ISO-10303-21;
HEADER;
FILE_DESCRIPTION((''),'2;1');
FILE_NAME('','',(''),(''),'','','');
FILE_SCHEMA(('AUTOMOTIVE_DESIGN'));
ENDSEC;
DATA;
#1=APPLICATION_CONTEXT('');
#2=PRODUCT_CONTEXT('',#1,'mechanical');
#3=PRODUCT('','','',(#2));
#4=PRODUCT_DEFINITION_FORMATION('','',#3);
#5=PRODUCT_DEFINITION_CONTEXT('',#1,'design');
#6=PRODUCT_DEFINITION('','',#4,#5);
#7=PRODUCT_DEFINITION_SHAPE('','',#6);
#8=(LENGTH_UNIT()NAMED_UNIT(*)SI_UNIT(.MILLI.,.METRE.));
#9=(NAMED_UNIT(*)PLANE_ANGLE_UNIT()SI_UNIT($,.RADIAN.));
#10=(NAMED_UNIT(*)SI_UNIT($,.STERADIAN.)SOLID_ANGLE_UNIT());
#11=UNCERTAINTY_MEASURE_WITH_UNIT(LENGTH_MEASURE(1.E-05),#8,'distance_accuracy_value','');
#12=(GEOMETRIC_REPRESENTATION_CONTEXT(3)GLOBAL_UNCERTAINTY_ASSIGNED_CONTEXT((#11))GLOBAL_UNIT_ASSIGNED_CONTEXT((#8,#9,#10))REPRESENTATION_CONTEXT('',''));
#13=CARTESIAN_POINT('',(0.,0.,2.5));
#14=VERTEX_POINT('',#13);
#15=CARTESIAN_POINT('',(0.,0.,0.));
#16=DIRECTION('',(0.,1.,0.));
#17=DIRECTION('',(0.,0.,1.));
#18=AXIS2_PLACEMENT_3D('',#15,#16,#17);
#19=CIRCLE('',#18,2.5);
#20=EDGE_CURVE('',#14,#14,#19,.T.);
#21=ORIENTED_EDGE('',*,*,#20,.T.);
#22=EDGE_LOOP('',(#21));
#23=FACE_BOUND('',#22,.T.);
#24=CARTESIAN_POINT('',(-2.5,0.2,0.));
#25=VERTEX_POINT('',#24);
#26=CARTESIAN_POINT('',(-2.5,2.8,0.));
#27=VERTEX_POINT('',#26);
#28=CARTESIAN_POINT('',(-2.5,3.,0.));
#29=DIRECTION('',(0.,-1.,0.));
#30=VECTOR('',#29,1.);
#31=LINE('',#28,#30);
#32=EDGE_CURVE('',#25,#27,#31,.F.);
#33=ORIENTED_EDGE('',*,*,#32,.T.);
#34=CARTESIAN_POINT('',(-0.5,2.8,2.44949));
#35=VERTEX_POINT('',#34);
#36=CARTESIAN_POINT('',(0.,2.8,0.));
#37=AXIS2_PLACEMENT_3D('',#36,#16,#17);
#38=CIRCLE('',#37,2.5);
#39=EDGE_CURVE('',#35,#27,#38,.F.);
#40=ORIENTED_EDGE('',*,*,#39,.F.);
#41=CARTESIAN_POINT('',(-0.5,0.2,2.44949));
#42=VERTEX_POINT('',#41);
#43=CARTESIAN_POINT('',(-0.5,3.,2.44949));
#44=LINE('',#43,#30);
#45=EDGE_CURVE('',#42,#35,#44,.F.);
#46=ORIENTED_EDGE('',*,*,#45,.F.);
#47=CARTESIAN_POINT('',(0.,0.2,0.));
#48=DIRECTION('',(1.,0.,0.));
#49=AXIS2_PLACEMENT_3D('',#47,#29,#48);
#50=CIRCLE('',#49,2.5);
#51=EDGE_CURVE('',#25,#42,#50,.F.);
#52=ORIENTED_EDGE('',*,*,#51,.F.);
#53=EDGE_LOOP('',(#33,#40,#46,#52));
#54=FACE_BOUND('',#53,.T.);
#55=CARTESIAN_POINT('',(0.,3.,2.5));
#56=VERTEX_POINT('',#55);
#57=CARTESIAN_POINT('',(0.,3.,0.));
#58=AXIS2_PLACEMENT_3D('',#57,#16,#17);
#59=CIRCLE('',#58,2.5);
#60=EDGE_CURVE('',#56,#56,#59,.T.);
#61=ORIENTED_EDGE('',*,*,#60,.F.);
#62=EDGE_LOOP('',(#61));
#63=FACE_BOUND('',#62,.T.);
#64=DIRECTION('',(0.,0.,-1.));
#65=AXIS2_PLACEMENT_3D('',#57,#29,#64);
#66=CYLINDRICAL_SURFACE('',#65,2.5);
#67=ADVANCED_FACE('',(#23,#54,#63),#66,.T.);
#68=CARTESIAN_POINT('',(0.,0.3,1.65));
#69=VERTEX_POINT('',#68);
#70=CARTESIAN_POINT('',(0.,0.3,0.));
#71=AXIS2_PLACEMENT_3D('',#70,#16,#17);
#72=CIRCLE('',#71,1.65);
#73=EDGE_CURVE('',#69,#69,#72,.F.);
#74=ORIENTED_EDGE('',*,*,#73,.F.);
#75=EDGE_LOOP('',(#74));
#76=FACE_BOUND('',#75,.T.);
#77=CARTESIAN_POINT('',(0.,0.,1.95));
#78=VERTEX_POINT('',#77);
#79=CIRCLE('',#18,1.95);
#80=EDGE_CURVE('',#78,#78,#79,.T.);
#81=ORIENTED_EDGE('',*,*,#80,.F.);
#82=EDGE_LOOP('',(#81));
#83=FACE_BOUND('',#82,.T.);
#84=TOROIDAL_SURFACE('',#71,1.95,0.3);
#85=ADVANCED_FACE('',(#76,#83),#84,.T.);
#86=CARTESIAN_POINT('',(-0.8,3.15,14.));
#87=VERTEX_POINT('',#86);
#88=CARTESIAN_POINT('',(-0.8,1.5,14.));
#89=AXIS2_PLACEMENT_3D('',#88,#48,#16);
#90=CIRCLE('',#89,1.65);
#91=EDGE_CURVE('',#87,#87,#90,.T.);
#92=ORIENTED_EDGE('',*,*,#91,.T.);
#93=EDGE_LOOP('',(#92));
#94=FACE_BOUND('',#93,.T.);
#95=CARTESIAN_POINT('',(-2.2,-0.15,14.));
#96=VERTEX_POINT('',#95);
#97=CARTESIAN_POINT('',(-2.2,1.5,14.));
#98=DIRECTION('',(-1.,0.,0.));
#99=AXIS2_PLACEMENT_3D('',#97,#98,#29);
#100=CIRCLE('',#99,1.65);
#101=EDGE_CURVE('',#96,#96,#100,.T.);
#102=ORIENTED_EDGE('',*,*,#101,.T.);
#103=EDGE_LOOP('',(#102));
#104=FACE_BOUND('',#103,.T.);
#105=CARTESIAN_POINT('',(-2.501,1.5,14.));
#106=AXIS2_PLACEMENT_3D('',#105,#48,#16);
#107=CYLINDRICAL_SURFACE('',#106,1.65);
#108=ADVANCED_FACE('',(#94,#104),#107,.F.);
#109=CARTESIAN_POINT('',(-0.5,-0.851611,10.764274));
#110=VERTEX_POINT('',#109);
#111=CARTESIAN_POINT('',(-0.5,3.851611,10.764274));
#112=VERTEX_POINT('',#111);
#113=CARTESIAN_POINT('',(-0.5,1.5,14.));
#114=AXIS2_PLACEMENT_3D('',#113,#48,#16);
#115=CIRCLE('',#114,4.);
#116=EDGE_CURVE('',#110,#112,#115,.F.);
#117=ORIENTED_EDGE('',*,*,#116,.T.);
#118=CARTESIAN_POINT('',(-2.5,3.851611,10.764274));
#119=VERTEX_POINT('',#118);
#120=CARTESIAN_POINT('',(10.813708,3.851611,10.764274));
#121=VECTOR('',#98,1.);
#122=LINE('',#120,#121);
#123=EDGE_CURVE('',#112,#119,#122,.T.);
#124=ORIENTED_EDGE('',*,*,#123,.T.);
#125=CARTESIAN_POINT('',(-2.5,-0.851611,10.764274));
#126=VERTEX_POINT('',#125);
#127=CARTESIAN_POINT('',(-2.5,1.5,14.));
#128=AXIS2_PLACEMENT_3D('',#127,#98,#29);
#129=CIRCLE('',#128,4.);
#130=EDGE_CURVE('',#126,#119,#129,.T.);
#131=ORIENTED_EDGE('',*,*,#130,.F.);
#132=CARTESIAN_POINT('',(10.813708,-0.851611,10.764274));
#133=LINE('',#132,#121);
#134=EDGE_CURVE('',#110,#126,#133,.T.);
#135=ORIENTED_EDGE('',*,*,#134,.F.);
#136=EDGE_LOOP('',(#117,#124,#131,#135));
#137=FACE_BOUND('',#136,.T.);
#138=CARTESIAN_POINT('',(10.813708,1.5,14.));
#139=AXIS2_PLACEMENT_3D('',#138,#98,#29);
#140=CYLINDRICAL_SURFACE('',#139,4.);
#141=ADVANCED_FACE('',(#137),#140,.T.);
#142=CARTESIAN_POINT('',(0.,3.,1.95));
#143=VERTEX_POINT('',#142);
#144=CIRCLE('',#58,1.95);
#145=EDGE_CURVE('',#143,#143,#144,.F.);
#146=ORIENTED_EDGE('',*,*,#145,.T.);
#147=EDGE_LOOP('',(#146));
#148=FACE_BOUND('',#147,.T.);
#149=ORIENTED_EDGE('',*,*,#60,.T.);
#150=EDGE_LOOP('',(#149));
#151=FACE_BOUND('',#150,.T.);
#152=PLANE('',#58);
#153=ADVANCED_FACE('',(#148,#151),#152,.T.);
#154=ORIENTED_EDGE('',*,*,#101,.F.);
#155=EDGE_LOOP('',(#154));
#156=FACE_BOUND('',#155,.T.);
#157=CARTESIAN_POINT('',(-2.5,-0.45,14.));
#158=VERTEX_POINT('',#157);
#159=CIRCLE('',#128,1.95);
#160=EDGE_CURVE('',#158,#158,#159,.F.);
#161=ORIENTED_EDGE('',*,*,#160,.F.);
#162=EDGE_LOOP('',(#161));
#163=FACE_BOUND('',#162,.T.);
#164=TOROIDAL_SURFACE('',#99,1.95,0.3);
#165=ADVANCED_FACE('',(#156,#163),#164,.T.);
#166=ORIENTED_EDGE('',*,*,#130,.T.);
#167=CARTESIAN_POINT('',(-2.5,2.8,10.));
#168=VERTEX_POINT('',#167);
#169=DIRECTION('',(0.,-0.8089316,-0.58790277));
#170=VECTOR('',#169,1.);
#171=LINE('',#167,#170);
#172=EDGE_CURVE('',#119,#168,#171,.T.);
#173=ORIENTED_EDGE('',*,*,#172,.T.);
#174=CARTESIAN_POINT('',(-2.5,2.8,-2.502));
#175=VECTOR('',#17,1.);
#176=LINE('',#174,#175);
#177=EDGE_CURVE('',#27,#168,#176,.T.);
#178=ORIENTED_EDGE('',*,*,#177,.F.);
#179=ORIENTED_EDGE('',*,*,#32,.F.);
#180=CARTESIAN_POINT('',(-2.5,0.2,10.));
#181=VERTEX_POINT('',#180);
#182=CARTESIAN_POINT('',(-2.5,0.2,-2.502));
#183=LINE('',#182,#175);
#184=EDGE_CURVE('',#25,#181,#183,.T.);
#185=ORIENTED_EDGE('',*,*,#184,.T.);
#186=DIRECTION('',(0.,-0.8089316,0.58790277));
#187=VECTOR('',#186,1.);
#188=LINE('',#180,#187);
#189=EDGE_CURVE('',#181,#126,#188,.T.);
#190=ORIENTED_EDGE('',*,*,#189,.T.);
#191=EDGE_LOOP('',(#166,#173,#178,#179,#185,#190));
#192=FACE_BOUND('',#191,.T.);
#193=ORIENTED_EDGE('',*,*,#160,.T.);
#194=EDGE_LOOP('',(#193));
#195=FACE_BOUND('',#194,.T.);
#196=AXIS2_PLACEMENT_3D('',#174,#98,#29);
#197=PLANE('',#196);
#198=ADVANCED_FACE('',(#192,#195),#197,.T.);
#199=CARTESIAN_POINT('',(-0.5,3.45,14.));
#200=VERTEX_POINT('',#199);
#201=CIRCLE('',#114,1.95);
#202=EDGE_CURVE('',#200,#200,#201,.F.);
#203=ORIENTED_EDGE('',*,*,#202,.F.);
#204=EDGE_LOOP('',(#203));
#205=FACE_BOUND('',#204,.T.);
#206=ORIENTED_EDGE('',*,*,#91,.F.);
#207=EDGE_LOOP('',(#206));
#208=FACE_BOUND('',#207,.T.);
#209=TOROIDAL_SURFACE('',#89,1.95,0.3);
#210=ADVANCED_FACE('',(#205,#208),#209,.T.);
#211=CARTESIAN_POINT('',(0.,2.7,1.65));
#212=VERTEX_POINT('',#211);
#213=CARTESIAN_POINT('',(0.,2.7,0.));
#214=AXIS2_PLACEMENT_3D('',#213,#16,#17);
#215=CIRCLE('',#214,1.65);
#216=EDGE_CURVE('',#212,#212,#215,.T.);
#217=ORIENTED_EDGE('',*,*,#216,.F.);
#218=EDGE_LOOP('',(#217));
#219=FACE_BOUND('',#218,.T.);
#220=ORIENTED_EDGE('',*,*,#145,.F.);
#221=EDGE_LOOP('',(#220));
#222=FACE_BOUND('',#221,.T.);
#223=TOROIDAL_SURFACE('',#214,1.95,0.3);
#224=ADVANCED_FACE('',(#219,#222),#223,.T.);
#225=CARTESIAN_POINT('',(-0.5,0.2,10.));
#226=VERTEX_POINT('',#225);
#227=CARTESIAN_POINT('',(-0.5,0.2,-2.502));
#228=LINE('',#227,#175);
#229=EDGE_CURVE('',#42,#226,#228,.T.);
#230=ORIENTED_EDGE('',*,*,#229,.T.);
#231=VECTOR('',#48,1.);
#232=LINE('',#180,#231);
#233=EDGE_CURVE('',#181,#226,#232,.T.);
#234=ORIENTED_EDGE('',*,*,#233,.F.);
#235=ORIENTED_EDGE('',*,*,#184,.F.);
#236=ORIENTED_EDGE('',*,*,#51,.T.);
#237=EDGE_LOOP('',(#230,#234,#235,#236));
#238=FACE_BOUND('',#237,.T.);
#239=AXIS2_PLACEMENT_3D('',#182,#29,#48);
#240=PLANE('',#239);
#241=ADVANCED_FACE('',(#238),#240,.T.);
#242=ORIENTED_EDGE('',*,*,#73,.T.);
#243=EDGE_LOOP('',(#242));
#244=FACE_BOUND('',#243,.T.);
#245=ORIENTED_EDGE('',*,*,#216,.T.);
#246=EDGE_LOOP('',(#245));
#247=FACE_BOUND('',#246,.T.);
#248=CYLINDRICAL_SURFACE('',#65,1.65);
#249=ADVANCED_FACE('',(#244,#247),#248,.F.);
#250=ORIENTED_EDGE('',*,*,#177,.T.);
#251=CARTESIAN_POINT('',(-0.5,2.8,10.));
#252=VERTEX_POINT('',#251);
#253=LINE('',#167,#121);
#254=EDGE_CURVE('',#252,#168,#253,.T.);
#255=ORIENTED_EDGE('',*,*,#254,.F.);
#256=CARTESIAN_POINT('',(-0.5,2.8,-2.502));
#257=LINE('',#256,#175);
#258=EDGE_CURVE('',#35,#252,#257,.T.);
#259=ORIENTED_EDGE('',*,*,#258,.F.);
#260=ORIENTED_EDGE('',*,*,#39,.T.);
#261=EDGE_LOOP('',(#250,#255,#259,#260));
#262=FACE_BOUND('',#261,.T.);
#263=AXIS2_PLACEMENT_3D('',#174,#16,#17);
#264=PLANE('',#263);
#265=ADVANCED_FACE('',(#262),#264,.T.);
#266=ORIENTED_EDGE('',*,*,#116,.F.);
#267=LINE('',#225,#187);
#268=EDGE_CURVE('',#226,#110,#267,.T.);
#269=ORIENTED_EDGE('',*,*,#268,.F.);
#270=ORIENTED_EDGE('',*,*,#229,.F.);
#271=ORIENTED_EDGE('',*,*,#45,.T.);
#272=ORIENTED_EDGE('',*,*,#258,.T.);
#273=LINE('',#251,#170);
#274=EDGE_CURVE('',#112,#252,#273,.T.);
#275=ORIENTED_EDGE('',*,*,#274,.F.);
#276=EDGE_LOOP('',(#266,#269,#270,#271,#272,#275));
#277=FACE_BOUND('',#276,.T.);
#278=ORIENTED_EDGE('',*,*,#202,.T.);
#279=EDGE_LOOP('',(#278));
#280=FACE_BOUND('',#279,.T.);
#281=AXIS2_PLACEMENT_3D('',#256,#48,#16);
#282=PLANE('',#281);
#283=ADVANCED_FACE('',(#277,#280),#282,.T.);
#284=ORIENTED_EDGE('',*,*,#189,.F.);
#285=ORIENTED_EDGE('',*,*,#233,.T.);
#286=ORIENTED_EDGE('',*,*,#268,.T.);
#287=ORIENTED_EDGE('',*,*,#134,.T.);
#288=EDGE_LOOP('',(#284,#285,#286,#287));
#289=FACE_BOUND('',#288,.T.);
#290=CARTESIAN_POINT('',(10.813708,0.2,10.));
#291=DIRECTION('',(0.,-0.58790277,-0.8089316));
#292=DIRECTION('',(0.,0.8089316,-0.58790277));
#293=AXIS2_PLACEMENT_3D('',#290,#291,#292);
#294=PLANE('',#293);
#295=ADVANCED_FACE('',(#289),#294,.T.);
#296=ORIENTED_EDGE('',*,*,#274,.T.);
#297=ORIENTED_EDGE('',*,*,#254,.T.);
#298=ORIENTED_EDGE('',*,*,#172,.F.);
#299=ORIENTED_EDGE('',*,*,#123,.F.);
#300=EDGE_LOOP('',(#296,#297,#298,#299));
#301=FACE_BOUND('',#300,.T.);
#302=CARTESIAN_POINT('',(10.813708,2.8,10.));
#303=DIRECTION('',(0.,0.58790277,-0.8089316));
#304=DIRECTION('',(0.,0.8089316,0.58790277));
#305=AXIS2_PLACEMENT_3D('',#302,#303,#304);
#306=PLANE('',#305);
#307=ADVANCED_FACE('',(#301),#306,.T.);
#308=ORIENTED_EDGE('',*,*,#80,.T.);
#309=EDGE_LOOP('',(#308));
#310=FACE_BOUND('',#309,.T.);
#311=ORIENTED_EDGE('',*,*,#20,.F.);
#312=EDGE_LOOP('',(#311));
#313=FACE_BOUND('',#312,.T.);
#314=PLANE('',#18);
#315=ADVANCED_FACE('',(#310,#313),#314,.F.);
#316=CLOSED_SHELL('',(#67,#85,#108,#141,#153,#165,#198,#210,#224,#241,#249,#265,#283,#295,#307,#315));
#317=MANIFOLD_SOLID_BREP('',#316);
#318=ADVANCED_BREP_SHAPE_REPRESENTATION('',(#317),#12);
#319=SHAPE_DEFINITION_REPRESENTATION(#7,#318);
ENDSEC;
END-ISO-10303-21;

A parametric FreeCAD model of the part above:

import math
import FreeCAD as App
import Part
import Sketcher


def edges_at(feature, points):
    """Names of the edges that pass closest to the given points."""
    edges = feature.Shape.Edges
    near = lambda p: min(range(len(edges)), key=lambda i: edges[i].distToShape(Part.Vertex(*p))[0])
    return sorted({f"Edge{near(p) + 1}" for p in points})


def add_polygon(sketch, points):
    """Adds a closed chain of lines whose ends are joined by coincident constraints."""
    first, n = sketch.GeometryCount, len(points)
    for a, b in zip(points, points[1:] + points[:1]):
        sketch.addGeometry(Part.LineSegment(App.Vector(*a, 0), App.Vector(*b, 0)), False)
    for i in range(n):
        sketch.addConstraint(Sketcher.Constraint("Coincident", first + i, 2, first + (i + 1) % n, 1))

doc = App.newDocument("Part")
body = doc.addObject("PartDesign::Body", "Body")

sketch1 = body.newObject("Sketcher::SketchObject", "Sketch")
sketch1.AttachmentSupport = (doc.getObject("XZ_Plane"), [""])
sketch1.MapMode = "FlatFace"
sketch1.addGeometry([
    Part.Circle(App.Vector(0, 0, 0), App.Vector(0, 0, 1), 2.5),
    Part.Circle(App.Vector(0, 0, 0), App.Vector(0, 0, 1), 1.6),
], False)
sketch1.addConstraint([
    Sketcher.Constraint("Coincident", 0, 3, -1, 1),
    Sketcher.Constraint("Coincident", 1, 3, -1, 1),
    Sketcher.Constraint("Diameter", 0, 5.0),
    Sketcher.Constraint("Diameter", 1, 3.3),
])
pad1 = body.newObject("PartDesign::Pad", "Pad")
pad1.Profile = sketch1
pad1.Length = 3
pad1.Reversed = True

sketch2 = body.newObject("Sketcher::SketchObject", "Sketch001")
sketch2.AttachmentSupport = (doc.getObject("XY_Plane"), [""])
sketch2.MapMode = "FlatFace"
sketch2.AttachmentOffset = App.Placement(App.Vector(0, 0, 10), App.Rotation())
add_polygon(sketch2, [(-2.5, 2.8), (-2.5, 0.2), (-0.5, 0.2), (-0.5, 2.8)])
sketch2.addConstraint([
    Sketcher.Constraint("Vertical", 0),
    Sketcher.Constraint("Horizontal", 1),
    Sketcher.Constraint("Vertical", 2),
    Sketcher.Constraint("Horizontal", 3),
    Sketcher.Constraint("DistanceX", 1, 1, 1, 2, 2.0),
    Sketcher.Constraint("DistanceY", 0, 2, 0, 1, 2.6),
    Sketcher.Constraint("DistanceX", 0, 2, -1, 1, 2.5),
    Sketcher.Constraint("DistanceY", -1, 1, 0, 2, 0.2),
])
pad2 = body.newObject("PartDesign::Pad", "Pad001")
pad2.Profile = sketch2
pad2.Type = "UpToFirst"
pad2.Reversed = True

sketch3 = body.newObject("Sketcher::SketchObject", "Sketch002")
sketch3.AttachmentSupport = (doc.getObject("YZ_Plane"), [""])
sketch3.MapMode = "FlatFace"
sketch3.AttachmentOffset = App.Placement(App.Vector(0, 0, -2.5), App.Rotation())
sketch3.addGeometry([
    Part.LineSegment(App.Vector(2.8, 10, 0), App.Vector(0.2, 10, 0)),
    Part.LineSegment(App.Vector(0.2, 10, 0), App.Vector(-0.9, 10.8, 0)),
    Part.ArcOfCircle(Part.Circle(App.Vector(1.5, 14, 0), App.Vector(0, 0, 1), 4), math.radians(-54), math.radians(234)),
    Part.LineSegment(App.Vector(3.9, 10.8, 0), App.Vector(2.8, 10, 0)),
], False)
sketch3.addConstraint([
    Sketcher.Constraint("Coincident", 0, 2, 1, 1),
    Sketcher.Constraint("Tangent", 1, 2, 2, 2),
    Sketcher.Constraint("Tangent", 2, 1, 3, 1),
    Sketcher.Constraint("Coincident", 3, 2, 0, 1),
    Sketcher.Constraint("Horizontal", 0),
    Sketcher.Constraint("Horizontal", 1, 2, 2, 1),
    Sketcher.Constraint("Radius", 2, 4.0),
    Sketcher.Constraint("DistanceX", 0, 2, 0, 1, 2.6),
    Sketcher.Constraint("DistanceY", -1, 1, 2, 3, 14.0),
    Sketcher.Constraint("DistanceY", -1, 1, 0, 2, 10.0),
    Sketcher.Constraint("DistanceX", -1, 1, 2, 3, 1.5),
])
pad3 = body.newObject("PartDesign::Pad", "Pad002")
pad3.Profile = sketch3
pad3.Length = 2

sketch4 = body.newObject("Sketcher::SketchObject", "Sketch003")
sketch4.AttachmentSupport = (doc.getObject("YZ_Plane"), [""])
sketch4.MapMode = "FlatFace"
sketch4.AttachmentOffset = App.Placement(App.Vector(0, 0, -0.5), App.Rotation())
sketch4.addGeometry(Part.Circle(App.Vector(1.5, 14, 0), App.Vector(0, 0, 1), 1.6), False)
sketch4.addConstraint([
    Sketcher.Constraint("Diameter", 0, 3.3),
    Sketcher.Constraint("DistanceY", -1, 1, 0, 3, 14.0),
    Sketcher.Constraint("DistanceX", -1, 1, 0, 3, 1.5),
])
pocket1 = body.newObject("PartDesign::Pocket", "Pocket")
pocket1.Profile = sketch4
pocket1.Type = "UpToFirst"
doc.recompute()

fillet = body.newObject("PartDesign::Fillet", "Fillet")
fillet.Base = (pocket1, edges_at(pocket1, [(-0.5, 1.5, 15.65)]))
fillet.Radius = 0.3
doc.recompute()

fillet2 = body.newObject("PartDesign::Fillet", "Fillet001")
fillet2.Base = (fillet, edges_at(fillet, [(-1.65, 3, 0)]))
fillet2.Radius = 0.3
doc.recompute()

fillet3 = body.newObject("PartDesign::Fillet", "Fillet002")
fillet3.Base = (fillet2, edges_at(fillet2, [(-1.65, 0, 0)]))
fillet3.Radius = 0.3
doc.recompute()

fillet4 = body.newObject("PartDesign::Fillet", "Fillet003")
fillet4.Base = (fillet3, edges_at(fillet3, [(-2.5, 1.5, 15.65)]))
fillet4.Radius = 0.3

doc.recompute()
